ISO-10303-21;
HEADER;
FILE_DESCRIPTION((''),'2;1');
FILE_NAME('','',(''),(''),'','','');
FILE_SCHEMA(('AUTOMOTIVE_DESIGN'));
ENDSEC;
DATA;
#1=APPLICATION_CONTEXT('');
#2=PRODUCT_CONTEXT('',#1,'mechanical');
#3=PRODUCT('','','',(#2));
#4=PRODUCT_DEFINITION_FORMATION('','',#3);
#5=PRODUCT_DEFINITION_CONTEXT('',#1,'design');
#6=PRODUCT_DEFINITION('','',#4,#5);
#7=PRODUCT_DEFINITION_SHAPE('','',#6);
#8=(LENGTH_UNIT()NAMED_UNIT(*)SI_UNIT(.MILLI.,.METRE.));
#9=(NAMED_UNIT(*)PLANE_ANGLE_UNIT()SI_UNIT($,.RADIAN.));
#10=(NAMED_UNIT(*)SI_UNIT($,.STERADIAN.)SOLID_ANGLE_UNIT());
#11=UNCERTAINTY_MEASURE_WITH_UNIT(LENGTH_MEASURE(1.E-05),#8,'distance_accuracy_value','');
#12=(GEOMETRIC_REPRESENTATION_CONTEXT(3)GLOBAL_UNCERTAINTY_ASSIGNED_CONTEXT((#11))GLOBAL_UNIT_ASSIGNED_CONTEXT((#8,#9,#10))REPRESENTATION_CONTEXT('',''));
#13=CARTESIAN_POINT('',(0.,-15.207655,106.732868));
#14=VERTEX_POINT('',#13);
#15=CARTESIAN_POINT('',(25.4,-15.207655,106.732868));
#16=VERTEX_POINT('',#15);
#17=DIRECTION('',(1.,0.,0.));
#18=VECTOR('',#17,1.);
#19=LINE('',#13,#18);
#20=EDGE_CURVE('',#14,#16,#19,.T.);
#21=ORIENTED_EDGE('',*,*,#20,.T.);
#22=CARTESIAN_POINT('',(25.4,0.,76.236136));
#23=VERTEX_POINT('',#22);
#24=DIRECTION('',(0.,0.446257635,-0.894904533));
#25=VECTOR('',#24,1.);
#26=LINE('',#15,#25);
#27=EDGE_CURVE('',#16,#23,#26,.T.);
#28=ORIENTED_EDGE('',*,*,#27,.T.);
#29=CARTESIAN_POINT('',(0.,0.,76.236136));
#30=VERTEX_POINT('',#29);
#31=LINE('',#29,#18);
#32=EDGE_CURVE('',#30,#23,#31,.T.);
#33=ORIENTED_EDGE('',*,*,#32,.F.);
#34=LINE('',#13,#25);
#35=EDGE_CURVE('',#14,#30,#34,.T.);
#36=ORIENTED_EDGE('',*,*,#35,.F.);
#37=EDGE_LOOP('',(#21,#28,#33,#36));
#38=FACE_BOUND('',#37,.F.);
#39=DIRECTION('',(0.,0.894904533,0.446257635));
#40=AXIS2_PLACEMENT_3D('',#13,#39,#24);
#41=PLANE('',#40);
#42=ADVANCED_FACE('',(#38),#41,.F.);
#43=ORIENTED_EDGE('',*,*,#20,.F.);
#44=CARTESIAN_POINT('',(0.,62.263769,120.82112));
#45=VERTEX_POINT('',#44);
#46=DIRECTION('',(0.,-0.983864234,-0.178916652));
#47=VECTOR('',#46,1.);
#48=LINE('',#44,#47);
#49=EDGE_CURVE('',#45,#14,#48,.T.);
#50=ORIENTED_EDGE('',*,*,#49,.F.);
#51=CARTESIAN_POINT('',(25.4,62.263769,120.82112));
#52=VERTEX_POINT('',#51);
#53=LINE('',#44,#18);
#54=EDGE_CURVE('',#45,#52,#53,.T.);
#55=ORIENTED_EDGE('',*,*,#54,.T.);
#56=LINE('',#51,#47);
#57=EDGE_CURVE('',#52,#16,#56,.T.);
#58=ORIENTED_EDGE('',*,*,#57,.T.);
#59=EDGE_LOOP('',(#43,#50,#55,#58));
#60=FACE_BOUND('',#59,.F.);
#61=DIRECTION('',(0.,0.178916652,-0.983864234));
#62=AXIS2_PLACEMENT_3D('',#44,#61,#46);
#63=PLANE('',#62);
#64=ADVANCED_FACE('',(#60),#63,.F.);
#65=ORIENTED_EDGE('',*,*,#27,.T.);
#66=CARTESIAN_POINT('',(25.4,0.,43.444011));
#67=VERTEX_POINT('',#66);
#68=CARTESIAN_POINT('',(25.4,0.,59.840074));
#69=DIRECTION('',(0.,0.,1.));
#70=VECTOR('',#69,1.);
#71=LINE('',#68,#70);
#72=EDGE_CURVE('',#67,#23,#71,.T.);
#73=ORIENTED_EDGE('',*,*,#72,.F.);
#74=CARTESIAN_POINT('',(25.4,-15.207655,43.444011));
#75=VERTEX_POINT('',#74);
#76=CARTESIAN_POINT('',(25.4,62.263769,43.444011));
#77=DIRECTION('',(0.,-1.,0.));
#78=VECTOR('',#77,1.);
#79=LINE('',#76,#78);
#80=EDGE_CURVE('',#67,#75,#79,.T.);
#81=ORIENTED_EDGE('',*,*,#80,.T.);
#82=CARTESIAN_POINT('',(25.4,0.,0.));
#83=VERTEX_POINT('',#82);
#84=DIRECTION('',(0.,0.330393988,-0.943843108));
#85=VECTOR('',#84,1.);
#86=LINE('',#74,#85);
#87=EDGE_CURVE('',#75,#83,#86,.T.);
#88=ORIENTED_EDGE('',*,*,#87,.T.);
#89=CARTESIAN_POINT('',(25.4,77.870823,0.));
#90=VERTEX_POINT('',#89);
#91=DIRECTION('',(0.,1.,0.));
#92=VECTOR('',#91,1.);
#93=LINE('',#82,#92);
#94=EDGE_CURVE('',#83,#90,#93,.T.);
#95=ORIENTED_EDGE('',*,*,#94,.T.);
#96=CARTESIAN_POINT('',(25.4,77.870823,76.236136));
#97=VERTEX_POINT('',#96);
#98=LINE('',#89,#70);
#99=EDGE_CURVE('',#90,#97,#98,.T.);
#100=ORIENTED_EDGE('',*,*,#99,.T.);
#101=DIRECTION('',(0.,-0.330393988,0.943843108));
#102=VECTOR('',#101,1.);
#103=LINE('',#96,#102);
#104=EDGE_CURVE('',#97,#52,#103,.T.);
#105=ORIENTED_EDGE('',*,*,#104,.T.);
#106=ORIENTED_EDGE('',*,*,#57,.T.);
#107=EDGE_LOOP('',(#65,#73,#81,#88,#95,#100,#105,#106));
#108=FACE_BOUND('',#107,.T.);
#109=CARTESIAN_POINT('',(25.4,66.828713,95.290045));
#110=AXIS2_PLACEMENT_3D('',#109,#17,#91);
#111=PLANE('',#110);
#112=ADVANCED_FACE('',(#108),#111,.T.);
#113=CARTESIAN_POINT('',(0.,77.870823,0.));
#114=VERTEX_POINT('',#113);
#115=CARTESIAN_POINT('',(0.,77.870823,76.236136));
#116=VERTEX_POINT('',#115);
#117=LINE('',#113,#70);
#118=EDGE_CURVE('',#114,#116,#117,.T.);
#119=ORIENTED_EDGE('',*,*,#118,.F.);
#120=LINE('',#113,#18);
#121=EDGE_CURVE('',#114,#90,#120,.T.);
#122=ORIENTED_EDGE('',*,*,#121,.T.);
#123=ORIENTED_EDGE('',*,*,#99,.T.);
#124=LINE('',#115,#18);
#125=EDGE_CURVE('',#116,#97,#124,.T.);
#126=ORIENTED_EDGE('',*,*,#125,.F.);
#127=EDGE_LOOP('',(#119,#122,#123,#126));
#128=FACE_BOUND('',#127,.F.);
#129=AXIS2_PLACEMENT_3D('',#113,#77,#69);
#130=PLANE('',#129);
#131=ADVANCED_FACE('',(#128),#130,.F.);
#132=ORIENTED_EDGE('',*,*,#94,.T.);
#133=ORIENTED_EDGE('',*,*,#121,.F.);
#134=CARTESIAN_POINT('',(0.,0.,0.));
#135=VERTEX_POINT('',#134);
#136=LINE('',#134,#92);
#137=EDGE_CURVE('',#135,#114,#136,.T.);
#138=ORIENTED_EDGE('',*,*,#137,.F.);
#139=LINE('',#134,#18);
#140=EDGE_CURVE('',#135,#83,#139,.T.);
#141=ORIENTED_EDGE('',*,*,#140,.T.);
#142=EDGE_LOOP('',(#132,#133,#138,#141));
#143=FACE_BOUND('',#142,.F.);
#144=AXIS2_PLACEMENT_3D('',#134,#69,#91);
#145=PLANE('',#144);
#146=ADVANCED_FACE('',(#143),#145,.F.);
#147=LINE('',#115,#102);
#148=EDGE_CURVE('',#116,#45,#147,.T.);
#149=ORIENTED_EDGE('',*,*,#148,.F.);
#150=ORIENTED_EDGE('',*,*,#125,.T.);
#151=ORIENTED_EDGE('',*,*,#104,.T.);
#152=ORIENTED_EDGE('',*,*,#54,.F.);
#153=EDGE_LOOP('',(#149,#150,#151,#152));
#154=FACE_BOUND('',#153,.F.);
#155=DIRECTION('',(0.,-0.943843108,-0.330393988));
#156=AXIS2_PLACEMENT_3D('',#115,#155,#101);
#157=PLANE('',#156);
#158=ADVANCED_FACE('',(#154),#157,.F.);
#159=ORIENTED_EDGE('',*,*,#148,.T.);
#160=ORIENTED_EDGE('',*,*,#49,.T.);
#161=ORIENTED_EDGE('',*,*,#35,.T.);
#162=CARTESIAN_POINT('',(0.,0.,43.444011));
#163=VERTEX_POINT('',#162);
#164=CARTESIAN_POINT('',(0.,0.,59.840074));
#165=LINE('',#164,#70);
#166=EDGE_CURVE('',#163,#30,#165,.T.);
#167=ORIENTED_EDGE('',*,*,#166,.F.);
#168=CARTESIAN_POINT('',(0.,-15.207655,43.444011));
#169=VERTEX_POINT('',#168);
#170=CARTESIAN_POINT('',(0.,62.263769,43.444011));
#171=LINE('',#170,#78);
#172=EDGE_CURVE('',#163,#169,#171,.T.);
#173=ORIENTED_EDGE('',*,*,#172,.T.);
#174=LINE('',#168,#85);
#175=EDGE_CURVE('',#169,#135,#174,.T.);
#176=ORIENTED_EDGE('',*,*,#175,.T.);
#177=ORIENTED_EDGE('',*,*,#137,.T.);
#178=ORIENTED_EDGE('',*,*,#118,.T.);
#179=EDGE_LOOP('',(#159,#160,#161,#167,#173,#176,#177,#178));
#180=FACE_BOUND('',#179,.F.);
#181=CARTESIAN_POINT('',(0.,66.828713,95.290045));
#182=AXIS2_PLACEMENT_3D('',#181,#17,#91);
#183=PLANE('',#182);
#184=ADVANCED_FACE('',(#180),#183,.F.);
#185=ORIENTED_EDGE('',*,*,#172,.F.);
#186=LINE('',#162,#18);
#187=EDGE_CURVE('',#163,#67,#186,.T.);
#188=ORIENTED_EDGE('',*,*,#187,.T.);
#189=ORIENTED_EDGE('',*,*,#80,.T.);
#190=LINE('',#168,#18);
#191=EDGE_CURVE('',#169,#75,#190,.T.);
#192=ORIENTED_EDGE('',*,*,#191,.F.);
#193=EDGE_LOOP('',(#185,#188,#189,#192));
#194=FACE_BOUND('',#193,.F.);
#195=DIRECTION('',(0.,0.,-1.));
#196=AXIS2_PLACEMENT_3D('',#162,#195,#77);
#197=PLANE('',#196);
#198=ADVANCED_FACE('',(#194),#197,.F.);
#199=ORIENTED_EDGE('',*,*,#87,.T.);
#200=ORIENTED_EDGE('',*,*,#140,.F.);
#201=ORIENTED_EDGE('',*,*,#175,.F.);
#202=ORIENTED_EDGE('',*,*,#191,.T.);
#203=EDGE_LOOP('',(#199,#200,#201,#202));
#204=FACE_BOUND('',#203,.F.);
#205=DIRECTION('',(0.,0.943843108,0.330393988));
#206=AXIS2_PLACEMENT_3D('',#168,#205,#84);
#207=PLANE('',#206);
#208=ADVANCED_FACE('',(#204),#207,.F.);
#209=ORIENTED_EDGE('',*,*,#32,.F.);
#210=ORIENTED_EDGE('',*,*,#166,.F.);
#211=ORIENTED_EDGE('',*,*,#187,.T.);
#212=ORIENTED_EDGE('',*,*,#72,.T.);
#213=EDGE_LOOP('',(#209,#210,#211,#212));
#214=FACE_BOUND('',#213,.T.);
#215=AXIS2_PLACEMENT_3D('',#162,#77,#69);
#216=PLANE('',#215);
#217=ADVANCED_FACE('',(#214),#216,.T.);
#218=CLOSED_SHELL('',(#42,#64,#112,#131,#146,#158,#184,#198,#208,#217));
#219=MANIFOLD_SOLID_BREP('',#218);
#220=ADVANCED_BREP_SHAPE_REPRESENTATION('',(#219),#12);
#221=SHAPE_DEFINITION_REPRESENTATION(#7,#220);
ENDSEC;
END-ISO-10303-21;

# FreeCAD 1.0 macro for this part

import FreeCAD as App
import Part
import Sketcher
from FreeCAD import Vector
Q = App.Units.Quantity

doc = App.newDocument("Part")
params = doc.addObject("Spreadsheet::Sheet", "Params")
for row, (alias, value) in enumerate([
    ("pad1_length", "1 in"),
], start=1):
    params.set(f"A{row}", alias)
    params.set(f"B{row}", "=" + value)
    params.setAlias(f"B{row}", alias)

body = doc.addObject("PartDesign::Body", "Body")

sketch1 = doc.addObject("Sketcher::SketchObject", "Sketch")
body.addObject(sketch1)
sketch1.AttachmentSupport = (doc.YZ_Plane, [""])
sketch1.MapMode = "FlatFace"
sketch1.addGeometry([
    Part.LineSegment(Vector(78, 76, 0), Vector(62, 121, 0)),
    Part.LineSegment(Vector(62, 121, 0), Vector(-15, 107, 0)),
    Part.LineSegment(Vector(-15, 107, 0), Vector(0, 76, 0)),
    Part.LineSegment(Vector(0, 76, 0), Vector(0, 43, 0)),
    Part.LineSegment(Vector(0, 43, 0), Vector(-15, 43, 0)),
    Part.LineSegment(Vector(-15, 43, 0), Vector(0, 0, 0)),
    Part.LineSegment(Vector(0, 0, 0), Vector(78, 0, 0)),
    Part.LineSegment(Vector(78, 0, 0), Vector(78, 76, 0)),
], False)
sketch1.addConstraint([
    Sketcher.Constraint("Coincident", 0, 2, 1, 1),
    Sketcher.Constraint("Coincident", 1, 2, 2, 1),
    Sketcher.Constraint("Coincident", 2, 2, 3, 1),
    Sketcher.Constraint("Coincident", 3, 2, 4, 1),
    Sketcher.Constraint("Coincident", 4, 2, 5, 1),
    Sketcher.Constraint("Coincident", 5, 2, 6, 1),
    Sketcher.Constraint("Coincident", 6, 2, 7, 1),
    Sketcher.Constraint("Coincident", 7, 2, 0, 1),
    Sketcher.Constraint("Vertical", 3),
    Sketcher.Constraint("Horizontal", 4),
    Sketcher.Constraint("Horizontal", 6),
    Sketcher.Constraint("Vertical", 7),
    Sketcher.Constraint("Coincident", 5, 2, -1, 1),
    Sketcher.Constraint("PointOnObject", 2, 2, -2),
    Sketcher.Constraint("Parallel", 0, 5),
    Sketcher.Constraint("Horizontal", 2, 2, 7, 2),
    Sketcher.Constraint("Vertical", 1, 2, 4, 2),
    Sketcher.Constraint("Distance", 5, Q("46.028848 mm")),
    Sketcher.Constraint("DistanceX", 4, 2, 4, 1, Q("15.207655 mm")),
    Sketcher.Constraint("DistanceX", 6, 1, 6, 2, Q("77.870823 mm")),
    Sketcher.Constraint("DistanceY", 3, 2, 3, 1, Q("32.792125 mm")),
    Sketcher.Constraint("DistanceX", -1, 1, 0, 2, Q("62.263769 mm")),
    Sketcher.Constraint("DistanceY", 2, 2, 1, 2, Q("30.496731 mm")),
])
pad1 = doc.addObject("PartDesign::Pad", "Pad")
body.addObject(pad1)
pad1.Profile = sketch1
pad1.setExpression("Length", "Params.pad1_length")

doc.recompute()
